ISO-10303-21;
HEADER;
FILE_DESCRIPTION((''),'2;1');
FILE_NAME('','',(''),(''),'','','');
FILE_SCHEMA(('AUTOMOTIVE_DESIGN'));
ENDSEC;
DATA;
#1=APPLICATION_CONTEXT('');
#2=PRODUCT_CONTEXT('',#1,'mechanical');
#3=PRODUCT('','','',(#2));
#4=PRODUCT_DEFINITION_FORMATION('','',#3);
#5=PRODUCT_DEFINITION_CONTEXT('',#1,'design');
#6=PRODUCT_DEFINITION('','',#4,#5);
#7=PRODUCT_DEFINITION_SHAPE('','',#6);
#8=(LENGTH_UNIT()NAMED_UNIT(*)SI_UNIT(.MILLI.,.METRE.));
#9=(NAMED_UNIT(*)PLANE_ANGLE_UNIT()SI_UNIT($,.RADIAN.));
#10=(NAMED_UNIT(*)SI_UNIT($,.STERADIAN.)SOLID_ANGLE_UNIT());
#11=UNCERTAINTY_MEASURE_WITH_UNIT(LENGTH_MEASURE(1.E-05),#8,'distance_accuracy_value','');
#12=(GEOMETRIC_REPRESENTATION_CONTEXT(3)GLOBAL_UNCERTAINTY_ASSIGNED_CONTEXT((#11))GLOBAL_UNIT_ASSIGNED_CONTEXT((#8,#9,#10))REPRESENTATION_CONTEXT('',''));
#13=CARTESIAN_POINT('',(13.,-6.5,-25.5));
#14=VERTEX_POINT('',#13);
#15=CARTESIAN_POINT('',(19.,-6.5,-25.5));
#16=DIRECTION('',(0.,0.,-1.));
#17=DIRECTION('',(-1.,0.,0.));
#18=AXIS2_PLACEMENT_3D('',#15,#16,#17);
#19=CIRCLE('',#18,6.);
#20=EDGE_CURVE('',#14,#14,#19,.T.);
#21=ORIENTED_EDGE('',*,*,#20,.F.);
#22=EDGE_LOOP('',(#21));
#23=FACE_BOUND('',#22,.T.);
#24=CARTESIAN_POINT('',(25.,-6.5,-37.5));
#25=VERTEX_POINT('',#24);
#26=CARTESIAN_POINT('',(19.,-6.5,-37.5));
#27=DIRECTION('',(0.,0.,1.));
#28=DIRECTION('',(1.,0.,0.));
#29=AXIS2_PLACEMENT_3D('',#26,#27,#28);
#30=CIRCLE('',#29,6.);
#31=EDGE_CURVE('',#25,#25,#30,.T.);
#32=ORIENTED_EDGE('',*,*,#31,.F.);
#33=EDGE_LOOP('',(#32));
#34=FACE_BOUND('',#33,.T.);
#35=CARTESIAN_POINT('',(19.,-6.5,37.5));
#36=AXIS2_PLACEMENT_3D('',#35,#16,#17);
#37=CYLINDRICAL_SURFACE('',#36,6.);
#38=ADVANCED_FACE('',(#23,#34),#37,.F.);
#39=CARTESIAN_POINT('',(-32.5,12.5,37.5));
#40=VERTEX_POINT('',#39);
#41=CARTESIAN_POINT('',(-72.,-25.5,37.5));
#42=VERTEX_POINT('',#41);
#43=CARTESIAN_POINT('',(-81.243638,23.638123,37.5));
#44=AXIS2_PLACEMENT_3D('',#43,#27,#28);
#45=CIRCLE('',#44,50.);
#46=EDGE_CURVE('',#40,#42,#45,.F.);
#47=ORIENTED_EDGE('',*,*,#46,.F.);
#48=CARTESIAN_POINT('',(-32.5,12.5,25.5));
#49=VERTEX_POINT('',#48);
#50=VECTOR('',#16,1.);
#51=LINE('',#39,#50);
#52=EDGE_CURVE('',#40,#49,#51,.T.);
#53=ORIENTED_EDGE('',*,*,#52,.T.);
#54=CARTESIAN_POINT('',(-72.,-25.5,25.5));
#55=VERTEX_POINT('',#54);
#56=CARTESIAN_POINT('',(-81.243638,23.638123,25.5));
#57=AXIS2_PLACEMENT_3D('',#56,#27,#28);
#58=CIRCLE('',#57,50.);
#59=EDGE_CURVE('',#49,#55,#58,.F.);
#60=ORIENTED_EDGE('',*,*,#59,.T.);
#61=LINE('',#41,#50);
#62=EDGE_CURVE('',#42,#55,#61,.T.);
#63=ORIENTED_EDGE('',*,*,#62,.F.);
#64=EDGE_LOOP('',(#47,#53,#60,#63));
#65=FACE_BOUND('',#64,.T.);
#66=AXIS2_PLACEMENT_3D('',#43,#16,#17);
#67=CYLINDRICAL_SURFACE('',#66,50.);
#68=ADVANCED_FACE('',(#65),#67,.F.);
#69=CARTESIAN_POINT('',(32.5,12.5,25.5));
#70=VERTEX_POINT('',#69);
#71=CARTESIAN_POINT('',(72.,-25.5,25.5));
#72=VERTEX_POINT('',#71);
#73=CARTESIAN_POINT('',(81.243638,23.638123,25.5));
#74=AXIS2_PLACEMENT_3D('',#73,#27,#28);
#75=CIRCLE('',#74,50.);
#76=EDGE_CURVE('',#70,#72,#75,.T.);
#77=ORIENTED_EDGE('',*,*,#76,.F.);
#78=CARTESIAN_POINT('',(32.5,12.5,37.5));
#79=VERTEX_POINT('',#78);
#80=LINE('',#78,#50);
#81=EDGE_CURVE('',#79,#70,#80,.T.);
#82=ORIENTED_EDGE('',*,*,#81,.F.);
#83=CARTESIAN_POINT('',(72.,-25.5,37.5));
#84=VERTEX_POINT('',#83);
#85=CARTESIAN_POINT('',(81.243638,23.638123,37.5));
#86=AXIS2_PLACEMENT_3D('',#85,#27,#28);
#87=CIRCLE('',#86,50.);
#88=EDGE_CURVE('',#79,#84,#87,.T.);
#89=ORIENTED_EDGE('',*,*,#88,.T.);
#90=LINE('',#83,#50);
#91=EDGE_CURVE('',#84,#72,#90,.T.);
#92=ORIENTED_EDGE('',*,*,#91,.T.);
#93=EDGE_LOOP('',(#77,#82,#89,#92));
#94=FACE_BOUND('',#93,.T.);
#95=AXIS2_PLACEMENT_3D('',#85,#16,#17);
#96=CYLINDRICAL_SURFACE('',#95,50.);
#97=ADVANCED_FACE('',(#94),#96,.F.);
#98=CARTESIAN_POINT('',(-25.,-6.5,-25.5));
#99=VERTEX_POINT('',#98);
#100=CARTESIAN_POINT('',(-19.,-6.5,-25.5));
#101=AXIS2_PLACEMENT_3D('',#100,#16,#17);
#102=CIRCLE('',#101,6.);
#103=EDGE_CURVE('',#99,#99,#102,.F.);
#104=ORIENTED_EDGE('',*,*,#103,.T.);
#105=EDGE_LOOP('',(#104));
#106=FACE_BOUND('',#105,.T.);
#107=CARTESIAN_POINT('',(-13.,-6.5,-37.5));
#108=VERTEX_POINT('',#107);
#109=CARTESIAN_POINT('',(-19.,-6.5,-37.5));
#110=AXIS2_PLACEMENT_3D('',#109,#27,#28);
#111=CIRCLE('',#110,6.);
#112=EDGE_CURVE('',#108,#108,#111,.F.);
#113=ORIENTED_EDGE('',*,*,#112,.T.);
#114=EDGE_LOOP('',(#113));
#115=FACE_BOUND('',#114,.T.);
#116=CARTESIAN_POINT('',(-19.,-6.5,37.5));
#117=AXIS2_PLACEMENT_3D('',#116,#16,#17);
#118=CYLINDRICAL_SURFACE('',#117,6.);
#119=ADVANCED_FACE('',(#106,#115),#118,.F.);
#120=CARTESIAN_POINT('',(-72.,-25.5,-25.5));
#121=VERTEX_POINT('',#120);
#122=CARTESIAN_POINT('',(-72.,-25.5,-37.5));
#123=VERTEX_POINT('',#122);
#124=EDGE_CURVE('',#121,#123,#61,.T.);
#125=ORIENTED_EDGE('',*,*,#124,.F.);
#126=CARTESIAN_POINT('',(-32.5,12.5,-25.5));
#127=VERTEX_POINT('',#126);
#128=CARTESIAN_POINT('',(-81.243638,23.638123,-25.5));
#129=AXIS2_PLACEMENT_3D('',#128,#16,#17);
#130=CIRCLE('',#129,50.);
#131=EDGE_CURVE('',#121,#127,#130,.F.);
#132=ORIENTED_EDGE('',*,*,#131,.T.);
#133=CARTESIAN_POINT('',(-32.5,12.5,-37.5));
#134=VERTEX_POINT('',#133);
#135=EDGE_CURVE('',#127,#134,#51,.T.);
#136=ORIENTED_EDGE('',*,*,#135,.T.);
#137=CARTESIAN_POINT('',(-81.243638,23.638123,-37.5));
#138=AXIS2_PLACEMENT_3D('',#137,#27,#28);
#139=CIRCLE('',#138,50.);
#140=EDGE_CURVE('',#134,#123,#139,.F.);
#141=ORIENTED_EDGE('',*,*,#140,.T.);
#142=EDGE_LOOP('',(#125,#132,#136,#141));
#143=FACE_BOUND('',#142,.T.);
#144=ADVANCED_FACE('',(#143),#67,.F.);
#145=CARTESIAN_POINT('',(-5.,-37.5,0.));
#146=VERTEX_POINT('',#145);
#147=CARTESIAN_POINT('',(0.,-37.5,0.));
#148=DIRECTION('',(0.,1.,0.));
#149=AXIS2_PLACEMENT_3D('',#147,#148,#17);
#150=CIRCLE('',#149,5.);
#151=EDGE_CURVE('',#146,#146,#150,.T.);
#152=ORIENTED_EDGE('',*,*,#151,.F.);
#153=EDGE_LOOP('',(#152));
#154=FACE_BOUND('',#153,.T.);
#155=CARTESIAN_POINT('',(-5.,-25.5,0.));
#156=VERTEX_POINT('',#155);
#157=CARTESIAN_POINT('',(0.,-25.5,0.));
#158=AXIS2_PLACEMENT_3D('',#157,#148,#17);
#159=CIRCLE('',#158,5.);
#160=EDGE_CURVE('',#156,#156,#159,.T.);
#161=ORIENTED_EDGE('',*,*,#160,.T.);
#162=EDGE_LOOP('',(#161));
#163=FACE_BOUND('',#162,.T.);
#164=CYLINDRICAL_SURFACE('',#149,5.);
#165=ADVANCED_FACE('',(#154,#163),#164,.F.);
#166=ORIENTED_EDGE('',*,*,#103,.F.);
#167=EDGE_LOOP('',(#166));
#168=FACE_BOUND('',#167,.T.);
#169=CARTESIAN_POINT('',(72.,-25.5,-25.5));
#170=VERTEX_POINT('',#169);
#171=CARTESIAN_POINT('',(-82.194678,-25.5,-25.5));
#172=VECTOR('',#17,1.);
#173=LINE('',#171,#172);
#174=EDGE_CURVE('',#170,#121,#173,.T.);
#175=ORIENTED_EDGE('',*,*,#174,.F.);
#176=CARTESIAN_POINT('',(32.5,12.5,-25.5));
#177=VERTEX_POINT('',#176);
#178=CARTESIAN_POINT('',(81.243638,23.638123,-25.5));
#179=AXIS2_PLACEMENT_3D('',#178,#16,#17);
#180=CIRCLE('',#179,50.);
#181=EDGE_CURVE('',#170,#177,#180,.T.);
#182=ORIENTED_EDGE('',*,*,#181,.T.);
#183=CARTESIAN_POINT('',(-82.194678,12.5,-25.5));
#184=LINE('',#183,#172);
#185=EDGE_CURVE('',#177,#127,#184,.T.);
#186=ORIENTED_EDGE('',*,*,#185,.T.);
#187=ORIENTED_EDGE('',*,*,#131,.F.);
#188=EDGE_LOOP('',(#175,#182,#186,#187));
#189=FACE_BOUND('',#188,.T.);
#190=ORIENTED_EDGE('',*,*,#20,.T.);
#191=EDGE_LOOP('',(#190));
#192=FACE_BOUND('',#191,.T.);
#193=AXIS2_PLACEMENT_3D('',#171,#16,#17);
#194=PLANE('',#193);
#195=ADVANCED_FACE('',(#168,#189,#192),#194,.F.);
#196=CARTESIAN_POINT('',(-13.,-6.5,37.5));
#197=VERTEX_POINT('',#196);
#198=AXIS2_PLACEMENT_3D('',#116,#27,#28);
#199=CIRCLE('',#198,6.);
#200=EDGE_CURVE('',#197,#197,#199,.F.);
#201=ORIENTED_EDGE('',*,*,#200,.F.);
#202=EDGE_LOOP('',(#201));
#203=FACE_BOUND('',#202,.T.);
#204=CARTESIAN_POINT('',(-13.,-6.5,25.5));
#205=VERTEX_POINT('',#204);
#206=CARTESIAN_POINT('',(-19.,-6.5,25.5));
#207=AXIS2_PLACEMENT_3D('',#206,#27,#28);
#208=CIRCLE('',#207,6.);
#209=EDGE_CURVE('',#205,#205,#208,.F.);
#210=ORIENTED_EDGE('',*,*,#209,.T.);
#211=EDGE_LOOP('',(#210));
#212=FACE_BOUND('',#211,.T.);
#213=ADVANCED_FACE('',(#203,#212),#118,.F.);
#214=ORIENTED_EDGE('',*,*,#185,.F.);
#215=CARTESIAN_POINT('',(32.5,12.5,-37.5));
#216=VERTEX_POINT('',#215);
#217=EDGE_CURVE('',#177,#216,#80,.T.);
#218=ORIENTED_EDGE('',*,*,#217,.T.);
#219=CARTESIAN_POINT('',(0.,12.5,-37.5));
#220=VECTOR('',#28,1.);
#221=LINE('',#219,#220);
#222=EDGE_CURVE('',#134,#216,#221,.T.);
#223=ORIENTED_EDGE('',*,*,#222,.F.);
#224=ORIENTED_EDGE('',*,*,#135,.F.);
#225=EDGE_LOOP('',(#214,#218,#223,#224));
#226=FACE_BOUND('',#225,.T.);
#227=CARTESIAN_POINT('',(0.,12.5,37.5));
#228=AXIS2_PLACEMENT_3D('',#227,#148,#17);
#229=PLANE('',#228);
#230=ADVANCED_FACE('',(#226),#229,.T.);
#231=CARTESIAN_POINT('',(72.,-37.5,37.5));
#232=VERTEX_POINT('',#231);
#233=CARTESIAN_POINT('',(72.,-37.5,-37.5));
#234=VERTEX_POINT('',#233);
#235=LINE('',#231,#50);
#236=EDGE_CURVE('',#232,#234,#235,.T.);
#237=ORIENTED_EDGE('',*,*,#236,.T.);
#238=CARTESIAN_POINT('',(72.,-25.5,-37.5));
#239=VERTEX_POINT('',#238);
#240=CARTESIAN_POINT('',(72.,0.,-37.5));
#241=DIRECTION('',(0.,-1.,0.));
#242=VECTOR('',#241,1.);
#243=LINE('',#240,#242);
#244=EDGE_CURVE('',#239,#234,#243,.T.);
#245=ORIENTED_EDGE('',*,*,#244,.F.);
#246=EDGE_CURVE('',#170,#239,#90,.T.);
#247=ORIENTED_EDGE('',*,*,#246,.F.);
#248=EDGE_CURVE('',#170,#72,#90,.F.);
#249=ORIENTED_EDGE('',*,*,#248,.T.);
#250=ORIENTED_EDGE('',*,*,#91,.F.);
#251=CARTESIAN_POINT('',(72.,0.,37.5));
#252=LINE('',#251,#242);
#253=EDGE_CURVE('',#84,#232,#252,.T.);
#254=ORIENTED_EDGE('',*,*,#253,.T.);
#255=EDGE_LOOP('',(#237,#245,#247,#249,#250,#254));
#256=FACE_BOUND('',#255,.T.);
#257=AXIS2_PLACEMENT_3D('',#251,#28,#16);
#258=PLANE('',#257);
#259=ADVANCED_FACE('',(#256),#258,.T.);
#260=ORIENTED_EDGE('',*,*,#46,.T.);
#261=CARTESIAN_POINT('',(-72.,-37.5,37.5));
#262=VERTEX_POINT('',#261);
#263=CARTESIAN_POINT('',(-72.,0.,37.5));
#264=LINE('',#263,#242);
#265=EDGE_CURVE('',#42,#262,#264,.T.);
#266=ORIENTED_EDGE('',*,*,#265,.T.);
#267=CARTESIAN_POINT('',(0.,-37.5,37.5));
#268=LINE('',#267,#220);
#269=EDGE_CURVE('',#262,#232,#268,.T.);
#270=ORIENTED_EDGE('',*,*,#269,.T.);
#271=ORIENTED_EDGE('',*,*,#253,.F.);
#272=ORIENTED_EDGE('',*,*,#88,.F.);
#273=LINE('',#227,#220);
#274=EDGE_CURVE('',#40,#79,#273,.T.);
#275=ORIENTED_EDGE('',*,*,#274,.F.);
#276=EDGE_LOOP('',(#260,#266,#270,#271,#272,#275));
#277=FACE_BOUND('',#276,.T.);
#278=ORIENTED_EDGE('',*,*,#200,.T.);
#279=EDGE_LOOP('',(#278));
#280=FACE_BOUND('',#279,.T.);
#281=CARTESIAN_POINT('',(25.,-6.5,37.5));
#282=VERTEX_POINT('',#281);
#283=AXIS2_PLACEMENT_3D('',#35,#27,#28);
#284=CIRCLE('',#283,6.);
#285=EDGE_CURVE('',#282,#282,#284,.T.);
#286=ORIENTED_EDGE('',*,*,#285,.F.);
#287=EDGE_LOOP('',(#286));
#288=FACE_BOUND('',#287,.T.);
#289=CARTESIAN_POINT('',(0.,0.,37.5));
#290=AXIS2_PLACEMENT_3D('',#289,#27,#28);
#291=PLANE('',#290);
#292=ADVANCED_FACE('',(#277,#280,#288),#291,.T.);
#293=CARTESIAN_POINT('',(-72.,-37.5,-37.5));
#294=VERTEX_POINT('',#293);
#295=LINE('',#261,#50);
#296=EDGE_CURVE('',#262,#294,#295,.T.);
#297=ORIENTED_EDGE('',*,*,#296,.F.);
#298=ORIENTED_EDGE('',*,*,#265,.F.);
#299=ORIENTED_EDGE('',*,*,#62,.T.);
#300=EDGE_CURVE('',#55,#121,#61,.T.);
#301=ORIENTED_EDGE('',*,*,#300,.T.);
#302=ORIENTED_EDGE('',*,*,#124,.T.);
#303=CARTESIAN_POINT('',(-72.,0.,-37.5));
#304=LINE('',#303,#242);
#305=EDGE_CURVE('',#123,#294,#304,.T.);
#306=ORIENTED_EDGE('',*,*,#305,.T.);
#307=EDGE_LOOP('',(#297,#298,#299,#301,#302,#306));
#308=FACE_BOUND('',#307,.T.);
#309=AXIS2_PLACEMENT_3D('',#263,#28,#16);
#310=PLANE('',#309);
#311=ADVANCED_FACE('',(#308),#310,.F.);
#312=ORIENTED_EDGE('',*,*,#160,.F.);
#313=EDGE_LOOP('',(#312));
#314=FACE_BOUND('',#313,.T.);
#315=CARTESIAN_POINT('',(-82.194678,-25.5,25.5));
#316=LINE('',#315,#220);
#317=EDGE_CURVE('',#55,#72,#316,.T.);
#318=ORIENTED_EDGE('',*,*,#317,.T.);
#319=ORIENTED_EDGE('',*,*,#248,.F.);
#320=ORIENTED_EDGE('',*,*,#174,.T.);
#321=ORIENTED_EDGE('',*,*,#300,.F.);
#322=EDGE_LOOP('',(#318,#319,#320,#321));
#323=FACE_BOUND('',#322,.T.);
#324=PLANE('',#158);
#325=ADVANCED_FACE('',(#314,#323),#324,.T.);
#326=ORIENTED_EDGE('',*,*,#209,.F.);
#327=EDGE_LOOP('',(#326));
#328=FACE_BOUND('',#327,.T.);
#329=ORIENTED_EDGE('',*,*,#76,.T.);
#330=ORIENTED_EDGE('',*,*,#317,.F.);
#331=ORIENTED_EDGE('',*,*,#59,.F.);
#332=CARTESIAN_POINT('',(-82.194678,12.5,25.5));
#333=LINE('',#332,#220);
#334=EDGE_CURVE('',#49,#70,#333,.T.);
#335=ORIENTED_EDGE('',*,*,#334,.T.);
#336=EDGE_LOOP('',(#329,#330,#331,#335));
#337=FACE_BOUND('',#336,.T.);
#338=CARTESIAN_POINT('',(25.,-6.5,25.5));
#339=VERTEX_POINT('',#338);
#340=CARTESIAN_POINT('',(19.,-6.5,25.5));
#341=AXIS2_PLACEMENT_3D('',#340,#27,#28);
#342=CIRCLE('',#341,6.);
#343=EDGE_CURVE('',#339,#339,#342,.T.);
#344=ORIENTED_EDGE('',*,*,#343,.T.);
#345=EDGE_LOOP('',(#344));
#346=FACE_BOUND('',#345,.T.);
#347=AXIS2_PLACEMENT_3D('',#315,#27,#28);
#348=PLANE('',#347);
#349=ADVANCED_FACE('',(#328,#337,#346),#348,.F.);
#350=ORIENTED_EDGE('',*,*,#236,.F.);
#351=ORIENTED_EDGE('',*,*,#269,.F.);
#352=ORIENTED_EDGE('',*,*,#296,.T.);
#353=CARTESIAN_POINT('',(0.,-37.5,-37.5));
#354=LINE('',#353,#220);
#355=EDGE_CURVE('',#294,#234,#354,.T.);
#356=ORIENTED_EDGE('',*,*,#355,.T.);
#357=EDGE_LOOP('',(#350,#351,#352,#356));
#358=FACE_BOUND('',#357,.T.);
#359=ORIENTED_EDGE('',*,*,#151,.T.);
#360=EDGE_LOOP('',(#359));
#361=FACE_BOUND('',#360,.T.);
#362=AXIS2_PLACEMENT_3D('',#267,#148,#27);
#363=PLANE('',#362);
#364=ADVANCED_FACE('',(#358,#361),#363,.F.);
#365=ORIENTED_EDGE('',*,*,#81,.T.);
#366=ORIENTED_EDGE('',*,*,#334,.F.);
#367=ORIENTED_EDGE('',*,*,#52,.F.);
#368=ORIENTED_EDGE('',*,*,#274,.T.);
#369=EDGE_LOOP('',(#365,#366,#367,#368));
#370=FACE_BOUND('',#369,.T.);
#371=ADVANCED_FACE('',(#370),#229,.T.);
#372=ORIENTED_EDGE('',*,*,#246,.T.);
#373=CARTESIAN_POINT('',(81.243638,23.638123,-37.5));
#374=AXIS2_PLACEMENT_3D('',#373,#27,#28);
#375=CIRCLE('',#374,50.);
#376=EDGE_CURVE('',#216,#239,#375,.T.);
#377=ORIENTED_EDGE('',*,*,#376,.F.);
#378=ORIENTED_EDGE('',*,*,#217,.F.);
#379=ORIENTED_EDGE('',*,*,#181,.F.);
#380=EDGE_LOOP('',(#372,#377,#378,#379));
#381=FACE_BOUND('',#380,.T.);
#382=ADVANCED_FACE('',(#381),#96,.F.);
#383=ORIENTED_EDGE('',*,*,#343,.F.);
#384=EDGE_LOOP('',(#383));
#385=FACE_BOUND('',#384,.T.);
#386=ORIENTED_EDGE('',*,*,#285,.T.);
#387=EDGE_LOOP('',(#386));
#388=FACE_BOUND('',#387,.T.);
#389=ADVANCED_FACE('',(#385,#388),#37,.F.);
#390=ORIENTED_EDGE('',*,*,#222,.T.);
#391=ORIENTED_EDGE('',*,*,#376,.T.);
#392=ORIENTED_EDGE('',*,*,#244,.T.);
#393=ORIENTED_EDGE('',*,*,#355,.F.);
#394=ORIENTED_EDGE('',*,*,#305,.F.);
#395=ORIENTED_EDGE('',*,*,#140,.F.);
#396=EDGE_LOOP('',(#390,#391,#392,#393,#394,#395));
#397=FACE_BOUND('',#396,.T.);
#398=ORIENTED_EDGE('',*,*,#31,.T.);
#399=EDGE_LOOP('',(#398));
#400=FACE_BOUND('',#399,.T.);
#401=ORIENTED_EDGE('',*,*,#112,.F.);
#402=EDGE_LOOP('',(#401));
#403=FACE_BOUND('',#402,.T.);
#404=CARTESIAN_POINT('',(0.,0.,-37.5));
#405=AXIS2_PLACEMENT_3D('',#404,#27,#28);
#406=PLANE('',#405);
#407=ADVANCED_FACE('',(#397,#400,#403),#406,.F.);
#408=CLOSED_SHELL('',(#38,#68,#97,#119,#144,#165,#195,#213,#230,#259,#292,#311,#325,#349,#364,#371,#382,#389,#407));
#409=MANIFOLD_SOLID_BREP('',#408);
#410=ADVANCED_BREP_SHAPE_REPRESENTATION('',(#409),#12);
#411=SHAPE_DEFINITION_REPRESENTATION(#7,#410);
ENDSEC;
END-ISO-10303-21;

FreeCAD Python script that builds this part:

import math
import FreeCAD as App
import Part
import Sketcher

V = App.Vector


def add_polygon(sketch, points):
    """Adds a closed chain of lines whose ends are joined by coincident constraints."""
    first, n = sketch.GeometryCount, len(points)
    for a, b in zip(points, points[1:] + points[:1]):
        sketch.addGeometry(Part.LineSegment(App.Vector(*a, 0), App.Vector(*b, 0)), False)
    for i in range(n):
        sketch.addConstraint(Sketcher.Constraint("Coincident", first + i, 2, first + (i + 1) % n, 1))

doc = App.newDocument("Part")
body = doc.addObject("PartDesign::Body", "Body")

sketch1 = body.newObject("Sketcher::SketchObject", "Sketch")
sketch1.AttachmentSupport = (doc.getObject("XY_Plane"), [""])
sketch1.MapMode = "FlatFace"
sketch1.addGeometry(Part.ArcOfCircle(Part.Circle(V(-81, 24, 0), V(0, 0, 1), 50), math.radians(-79), math.radians(-13)), False)
sketch1.addGeometry(Part.LineSegment(V(-72, -26, 0), V(-72, -38, 0)), False)
sketch1.addGeometry(Part.LineSegment(V(-72, -38, 0), V(72, -38, 0)), False)
sketch1.addGeometry(Part.LineSegment(V(72, -38, 0), V(72, -26, 0)), False)
sketch1.addGeometry(Part.ArcOfCircle(Part.Circle(V(81, 24, 0), V(0, 0, 1), 50), math.radians(-167), math.radians(-101)), False)
sketch1.addGeometry(Part.LineSegment(V(32, 12, 0), V(-32, 12, 0)), False)
sketch1.addGeometry(Part.Circle(V(-19, -6, 0), V(0, 0, 1), 6), False)
sketch1.addGeometry(Part.Circle(V(19, -6, 0), V(0, 0, 1), 6), False)
sketch1.addConstraint(Sketcher.Constraint("Coincident", 0, 1, 1, 1))
sketch1.addConstraint(Sketcher.Constraint("Coincident", 1, 2, 2, 1))
sketch1.addConstraint(Sketcher.Constraint("Coincident", 2, 2, 3, 1))
sketch1.addConstraint(Sketcher.Constraint("Coincident", 3, 2, 4, 2))
sketch1.addConstraint(Sketcher.Constraint("Coincident", 4, 1, 5, 1))
sketch1.addConstraint(Sketcher.Constraint("Coincident", 5, 2, 0, 2))
sketch1.addConstraint(Sketcher.Constraint("Vertical", 1))
sketch1.addConstraint(Sketcher.Constraint("Horizontal", 2))
sketch1.addConstraint(Sketcher.Constraint("Vertical", 3))
sketch1.addConstraint(Sketcher.Constraint("Horizontal", 5))
sketch1.addConstraint(Sketcher.Constraint("Equal", 0, 4))
sketch1.addConstraint(Sketcher.Constraint("Equal", 6, 7))
sketch1.addConstraint(Sketcher.Constraint("Symmetric", 0, 3, 4, 3, -2))
sketch1.addConstraint(Sketcher.Constraint("Symmetric", 6, 3, 7, 3, -2))
sketch1.addConstraint(Sketcher.Constraint("Horizontal", 0, 1, 3, 2))
sketch1.addConstraint(Sketcher.Constraint("Diameter", 6, 12.0))
sketch1.addConstraint(Sketcher.Constraint("Radius", 0, 50.0))
sketch1.addConstraint(Sketcher.Constraint("DistanceX", 2, 1, 2, 2, 144.0))
sketch1.addConstraint(Sketcher.Constraint("DistanceX", 5, 2, 5, 1, 65.0))
sketch1.addConstraint(Sketcher.Constraint("DistanceY", 1, 2, 1, 1, 12.0))
sketch1.addConstraint(Sketcher.Constraint("DistanceX", 6, 3, -1, 1, 19.0))
sketch1.addConstraint(Sketcher.Constraint("DistanceY", 0, 1, 6, 3, 19.0))
sketch1.addConstraint(Sketcher.Constraint("DistanceY", 7, 3, 4, 1, 19.0))
sketch1.addConstraint(Sketcher.Constraint("DistanceY", 6, 3, -1, 1, 6.5))
pad1 = body.newObject("PartDesign::Pad", "Pad")
pad1.Profile = sketch1
pad1.Length = 75
pad1.Midplane = True

sketch2 = body.newObject("Sketcher::SketchObject", "Sketch001")
sketch2.AttachmentSupport = (doc.getObject("XZ_Plane"), [""])
sketch2.MapMode = "FlatFace"
sketch2.AttachmentOffset = App.Placement(V(0, 0, -12.5), App.Rotation())
add_polygon(sketch2, [(-82, -26), (-82, 26), (82, 26), (82, -26)])
sketch2.addConstraint(Sketcher.Constraint("Vertical", 0))
sketch2.addConstraint(Sketcher.Constraint("Horizontal", 1))
sketch2.addConstraint(Sketcher.Constraint("Vertical", 2))
sketch2.addConstraint(Sketcher.Constraint("Horizontal", 3))
sketch2.addConstraint(Sketcher.Constraint("Symmetric", 0, 2, 2, 2, -1, 1))
sketch2.addConstraint(Sketcher.Constraint("DistanceY", 0, 1, 0, 2, 51.0))
sketch2.addConstraint(Sketcher.Constraint("DistanceX", 1, 1, 1, 2, 164.389357))
pocket1 = body.newObject("PartDesign::Pocket", "Pocket")
pocket1.Profile = sketch2
pocket1.Length = 38
pocket1.Reversed = True

sketch3 = body.newObject("Sketcher::SketchObject", "Sketch002")
sketch3.AttachmentSupport = (doc.getObject("XZ_Plane"), [""])
sketch3.MapMode = "FlatFace"
sketch3.AttachmentOffset = App.Placement(V(0, 0, 25.5), App.Rotation())
sketch3.addGeometry(Part.Circle(V(0, 0, 0), V(0, 0, 1), 5), False)
sketch3.addConstraint(Sketcher.Constraint("Coincident", 0, 3, -1, 1))
sketch3.addConstraint(Sketcher.Constraint("Diameter", 0, 10.0))
pocket2 = body.newObject("PartDesign::Pocket", "Pocket001")
pocket2.Profile = sketch3
pocket2.Type = "ThroughAll"
pocket2.Reversed = True

doc.recompute()
